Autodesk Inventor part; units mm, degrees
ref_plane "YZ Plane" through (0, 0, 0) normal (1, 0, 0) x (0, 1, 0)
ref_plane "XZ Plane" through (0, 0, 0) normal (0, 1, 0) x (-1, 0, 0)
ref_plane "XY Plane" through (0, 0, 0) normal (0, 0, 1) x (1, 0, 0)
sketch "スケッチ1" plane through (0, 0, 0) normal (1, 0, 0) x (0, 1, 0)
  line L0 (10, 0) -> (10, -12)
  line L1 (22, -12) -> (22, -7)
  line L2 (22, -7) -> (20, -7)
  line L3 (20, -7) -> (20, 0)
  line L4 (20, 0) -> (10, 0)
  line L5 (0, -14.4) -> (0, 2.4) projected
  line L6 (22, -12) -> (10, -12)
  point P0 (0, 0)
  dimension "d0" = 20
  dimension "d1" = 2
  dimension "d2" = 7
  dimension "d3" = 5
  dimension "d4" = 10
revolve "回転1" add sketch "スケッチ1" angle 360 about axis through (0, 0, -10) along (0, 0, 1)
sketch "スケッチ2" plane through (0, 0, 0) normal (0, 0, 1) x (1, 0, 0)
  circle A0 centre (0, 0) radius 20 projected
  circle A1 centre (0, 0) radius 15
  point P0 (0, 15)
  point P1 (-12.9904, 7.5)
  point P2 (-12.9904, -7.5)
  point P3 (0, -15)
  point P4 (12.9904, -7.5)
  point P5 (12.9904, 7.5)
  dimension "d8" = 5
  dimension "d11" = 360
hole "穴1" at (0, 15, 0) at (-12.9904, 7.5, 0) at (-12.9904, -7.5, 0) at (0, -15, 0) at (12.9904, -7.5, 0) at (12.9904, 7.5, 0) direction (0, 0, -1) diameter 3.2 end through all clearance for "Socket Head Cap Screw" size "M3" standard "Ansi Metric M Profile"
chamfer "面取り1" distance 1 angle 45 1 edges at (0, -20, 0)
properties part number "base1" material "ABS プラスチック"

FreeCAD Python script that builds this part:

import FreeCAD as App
import Part
import Sketcher
Q = App.Units.Quantity


def edges_at(feature, points):
    """Names of the edges that pass closest to the given points."""
    edges = feature.Shape.Edges
    near = lambda p: min(range(len(edges)), key=lambda i: edges[i].distToShape(Part.Vertex(*p))[0])
    return sorted({f"Edge{near(p) + 1}" for p in points})


def add_polygon(sketch, points):
    """Adds a closed chain of lines whose ends are joined by coincident constraints."""
    first, n = sketch.GeometryCount, len(points)
    for a, b in zip(points, points[1:] + points[:1]):
        sketch.addGeometry(Part.LineSegment(App.Vector(*a, 0), App.Vector(*b, 0)), False)
    for i in range(n):
        sketch.addConstraint(Sketcher.Constraint("Coincident", first + i, 2, first + (i + 1) % n, 1))

doc = App.newDocument("Part")
body = doc.addObject("PartDesign::Body", "Body")

sketch1 = doc.addObject("Sketcher::SketchObject", "Sketch")
body.addObject(sketch1)
sketch1.AttachmentSupport = (doc.YZ_Plane, [""])
sketch1.MapMode = "FlatFace"
add_polygon(sketch1, [(20, 0), (10, 0), (10, -12), (22, -12), (22, -7), (20, -7)])
sketch1.addConstraint([
    Sketcher.Constraint("Horizontal", 0),
    Sketcher.Constraint("Vertical", 1),
    Sketcher.Constraint("Horizontal", 2),
    Sketcher.Constraint("Vertical", 3),
    Sketcher.Constraint("Horizontal", 4),
    Sketcher.Constraint("Vertical", 5),
    Sketcher.Constraint("PointOnObject", 0, 2, -1),
    Sketcher.Constraint("Equal", 2, 1),
    Sketcher.Constraint("DistanceX", 0, 2, 0, 1, Q("10 mm")),
    Sketcher.Constraint("DistanceX", 4, 2, 4, 1, Q("2 mm")),
    Sketcher.Constraint("DistanceY", 3, 1, 3, 2, Q("5 mm")),
    Sketcher.Constraint("DistanceX", -1, 1, 0, 2, Q("10 mm")),
])
revolution = doc.addObject("PartDesign::Revolution", "Revolution")
body.addObject(revolution)
revolution.Profile = sketch1
revolution.ReferenceAxis = (sketch1, ["V_Axis"])
revolution.Angle = 360

sketch2 = doc.addObject("Sketcher::SketchObject", "Sketch001")
body.addObject(sketch2)
sketch2.AttachmentSupport = (doc.XY_Plane, [""])
sketch2.MapMode = "FlatFace"
sketch2.addGeometry([
    Part.Circle(App.Vector(0, 15, 0), App.Vector(0, 0, 1), 1.6),
    Part.Circle(App.Vector(-13, 7.5, 0), App.Vector(0, 0, 1), 1.6),
    Part.Circle(App.Vector(-13, -7.5, 0), App.Vector(0, 0, 1), 1.6),
    Part.Circle(App.Vector(0, -15, 0), App.Vector(0, 0, 1), 1.6),
    Part.Circle(App.Vector(13, -7.5, 0), App.Vector(0, 0, 1), 1.6),
    Part.Circle(App.Vector(13, 7.5, 0), App.Vector(0, 0, 1), 1.6),
], False)
sketch2.addConstraint([
    Sketcher.Constraint("Equal", 0, 1),
    Sketcher.Constraint("Equal", 1, 2),
    Sketcher.Constraint("Equal", 2, 3),
    Sketcher.Constraint("Equal", 3, 4),
    Sketcher.Constraint("Equal", 4, 5),
    Sketcher.Constraint("Symmetric", 0, 3, 3, 3, -1, 1),
    Sketcher.Constraint("Symmetric", 1, 3, 4, 3, -1, 1),
    Sketcher.Constraint("Symmetric", 2, 3, 5, 3, -1, 1),
    Sketcher.Constraint("Symmetric", 2, 3, 4, 3, -2),
    Sketcher.Constraint("PointOnObject", 0, 3, -2),
    Sketcher.Constraint("Diameter", 0, Q("3.2 mm")),
    Sketcher.Constraint("DistanceY", -1, 1, 0, 3, Q("15 mm")),
    Sketcher.Constraint("DistanceY", 2, 3, 1, 3, Q("15 mm")),
    Sketcher.Constraint("DistanceX", 1, 3, -1, 1, Q("12.9904 mm")),
])
doc.recompute()
hole = doc.addObject("PartDesign::Hole", "Hole")
body.addObject(hole)
hole.Profile = sketch2
hole.ThreadType = "None"
hole.Diameter = 3.2
hole.DepthType = "ThroughAll"
doc.recompute()

chamfer = doc.addObject("PartDesign::Chamfer", "Chamfer")
body.addObject(chamfer)
chamfer.Base = (hole, edges_at(hole, [(0, -20, 0)]))
chamfer.Size = 1

doc.recompute()
